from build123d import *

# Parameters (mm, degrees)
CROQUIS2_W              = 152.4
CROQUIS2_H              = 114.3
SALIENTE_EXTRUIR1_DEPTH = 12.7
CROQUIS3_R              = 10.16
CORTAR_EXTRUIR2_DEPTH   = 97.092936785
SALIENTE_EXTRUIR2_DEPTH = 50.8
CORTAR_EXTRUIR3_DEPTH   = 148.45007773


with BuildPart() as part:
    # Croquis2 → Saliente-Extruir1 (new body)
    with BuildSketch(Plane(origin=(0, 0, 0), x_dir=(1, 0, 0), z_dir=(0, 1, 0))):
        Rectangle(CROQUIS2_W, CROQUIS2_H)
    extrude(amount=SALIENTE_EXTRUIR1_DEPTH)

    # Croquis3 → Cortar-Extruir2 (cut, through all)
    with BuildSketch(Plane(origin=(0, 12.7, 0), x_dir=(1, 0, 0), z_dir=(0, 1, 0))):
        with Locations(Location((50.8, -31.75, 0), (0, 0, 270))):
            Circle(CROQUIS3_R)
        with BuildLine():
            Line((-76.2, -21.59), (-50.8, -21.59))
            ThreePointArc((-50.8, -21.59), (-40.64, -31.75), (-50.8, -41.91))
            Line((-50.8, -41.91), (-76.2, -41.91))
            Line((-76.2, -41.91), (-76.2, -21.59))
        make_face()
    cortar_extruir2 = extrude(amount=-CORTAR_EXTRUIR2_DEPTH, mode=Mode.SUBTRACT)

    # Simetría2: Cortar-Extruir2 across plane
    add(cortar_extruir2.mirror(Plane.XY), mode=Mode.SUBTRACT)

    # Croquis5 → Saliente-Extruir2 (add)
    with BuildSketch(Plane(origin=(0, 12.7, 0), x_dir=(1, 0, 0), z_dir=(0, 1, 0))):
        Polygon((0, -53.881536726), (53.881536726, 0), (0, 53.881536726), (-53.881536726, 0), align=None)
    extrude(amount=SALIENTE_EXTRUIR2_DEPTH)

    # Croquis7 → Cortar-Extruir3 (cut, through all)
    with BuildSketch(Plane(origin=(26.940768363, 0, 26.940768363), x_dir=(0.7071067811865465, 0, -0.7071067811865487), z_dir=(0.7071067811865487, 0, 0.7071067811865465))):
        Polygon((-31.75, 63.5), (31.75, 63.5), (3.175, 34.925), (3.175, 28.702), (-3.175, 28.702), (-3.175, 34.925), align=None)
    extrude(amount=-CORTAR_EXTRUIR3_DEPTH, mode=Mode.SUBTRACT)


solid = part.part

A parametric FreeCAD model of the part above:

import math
import FreeCAD as App
import Part
import Sketcher
Q = App.Units.Quantity

doc = App.newDocument("Part")
body = doc.addObject("PartDesign::Body", "Body")

# Sketch on XZ plane
sketch1 = doc.addObject("Sketcher::SketchObject", "Sketch")
body.addObject(sketch1)
sketch1.AttachmentSupport = (doc.XZ_Plane, [""])
sketch1.MapMode = "FlatFace"
sketch1.addGeometry([
    Part.LineSegment(App.Vector(-76, -57, 0), App.Vector(-76, 57, 0)),
    Part.LineSegment(App.Vector(-76, 57, 0), App.Vector(76, 57, 0)),
    Part.LineSegment(App.Vector(76, 57, 0), App.Vector(76, -57, 0)),
    Part.LineSegment(App.Vector(76, -57, 0), App.Vector(-76, -57, 0)),
], False)
sketch1.addConstraint([
    Sketcher.Constraint("Coincident", 0, 2, 1, 1),
    Sketcher.Constraint("Coincident", 1, 2, 2, 1),
    Sketcher.Constraint("Coincident", 2, 2, 3, 1),
    Sketcher.Constraint("Coincident", 3, 2, 0, 1),
    Sketcher.Constraint("Vertical", 0),
    Sketcher.Constraint("Horizontal", 1),
    Sketcher.Constraint("Vertical", 2),
    Sketcher.Constraint("Horizontal", 3),
    Sketcher.Constraint("Symmetric", 0, 2, 2, 2, -1, 1),
    Sketcher.Constraint("DistanceX", 1, 1, 1, 2, Q("6 in")),
    Sketcher.Constraint("DistanceY", 0, 1, 0, 2, Q("4.5 in")),
])
pad1 = doc.addObject("PartDesign::Pad", "Pad")
body.addObject(pad1)
pad1.Profile = sketch1
pad1.Length = Q("0.5 in")
pad1.Reversed = True

# Sketch on XZ plane
sketch2 = doc.addObject("Sketcher::SketchObject", "Sketch001")
body.addObject(sketch2)
sketch2.AttachmentSupport = (doc.XZ_Plane, [""])
sketch2.MapMode = "FlatFace"
sketch2.AttachmentOffset = App.Placement(App.Vector(0, 0, -0.5 * 25.4), App.Rotation())
sketch2.addGeometry([
    Part.Circle(App.Vector(51, 32, 0), App.Vector(0, 0, 1), 10),  # 0
    Part.LineSegment(App.Vector(-51, 22, 0), App.Vector(-76, 22, 0)),  # 1
    Part.LineSegment(App.Vector(-76, 22, 0), App.Vector(-76, 42, 0)),  # 2
    Part.LineSegment(App.Vector(-76, 42, 0), App.Vector(-51, 42, 0)),  # 3
    Part.ArcOfCircle(Part.Circle(App.Vector(-51, 32, 0), App.Vector(0, 0, 1), 10), math.radians(-90), math.radians(90)),  # 4
], False)
sketch2.addConstraint([
    Sketcher.Constraint("Coincident", 1, 2, 2, 1),
    Sketcher.Constraint("Coincident", 2, 2, 3, 1),
    Sketcher.Constraint("Tangent", 3, 2, 4, 2),
    Sketcher.Constraint("Tangent", 4, 1, 1, 1),
    Sketcher.Constraint("Horizontal", 1),
    Sketcher.Constraint("Vertical", 2),
    Sketcher.Constraint("Horizontal", 3),
    Sketcher.Constraint("Equal", 0, 4),
    Sketcher.Constraint("Symmetric", 0, 3, 4, 3, -2),
    Sketcher.Constraint("Diameter", 0, Q("0.8 in")),
    Sketcher.Constraint("DistanceX", 1, 2, 1, 1, Q("1 in")),
    Sketcher.Constraint("DistanceX", -1, 1, 0, 3, Q("2 in")),
    Sketcher.Constraint("DistanceY", -1, 1, 0, 3, Q("1.25 in")),
])
pocket1 = doc.addObject("PartDesign::Pocket", "Pocket")
body.addObject(pocket1)
pocket1.Profile = sketch2
pocket1.Type = "ThroughAll"
pocket1.Reversed = True
doc.recompute()

mirrored = doc.addObject("PartDesign::Mirrored", "Mirrored")
body.addObject(mirrored)
mirrored.Originals = [pocket1]
mirrored.MirrorPlane = (doc.XY_Plane, [""])
body.Tip = mirrored

# Sketch on XZ plane
sketch3 = doc.addObject("Sketcher::SketchObject", "Sketch002")
body.addObject(sketch3)
sketch3.AttachmentSupport = (doc.XZ_Plane, [""])
sketch3.MapMode = "FlatFace"
sketch3.AttachmentOffset = App.Placement(App.Vector(0, 0, -0.5 * 25.4), App.Rotation())
sketch3.addGeometry([
    Part.LineSegment(App.Vector(0, 54, 0), App.Vector(54, 0, 0)),
    Part.LineSegment(App.Vector(54, 0, 0), App.Vector(0, -54, 0)),
    Part.LineSegment(App.Vector(0, -54, 0), App.Vector(-54, 0, 0)),
    Part.LineSegment(App.Vector(-54, 0, 0), App.Vector(0, 54, 0)),
], False)
sketch3.addConstraint([
    Sketcher.Constraint("Coincident", 0, 2, 1, 1),
    Sketcher.Constraint("Coincident", 1, 2, 2, 1),
    Sketcher.Constraint("Coincident", 2, 2, 3, 1),
    Sketcher.Constraint("Coincident", 3, 2, 0, 1),
    Sketcher.Constraint("Symmetric", 0, 2, 2, 2, -1, 1),
    Sketcher.Constraint("Symmetric", 1, 2, 3, 2, -1, 1),
    Sketcher.Constraint("PointOnObject", 0, 2, -1),
    Sketcher.Constraint("PointOnObject", 1, 2, -2),
    Sketcher.Constraint("Perpendicular", 0, 1),
    Sketcher.Constraint("Distance", 0, Q("3 in")),
])
pad2 = doc.addObject("PartDesign::Pad", "Pad001")
body.addObject(pad2)
pad2.Profile = sketch3
pad2.Length = Q("2 in")
pad2.Reversed = True

# Sketch on an angled plane
sketch4 = doc.addObject("Sketcher::SketchObject", "Sketch003")
body.addObject(sketch4)
sketch4.Placement = App.Placement(App.Vector(26.940768, 0, 26.940768), App.Rotation(App.Vector(0.707106781, 0, -0.707106781), App.Vector(0, 0.999999999, 0), App.Vector(0.707106781, 0, 0.707106781), "ZXY"))
sketch4.addGeometry([
    Part.LineSegment(App.Vector(32, 63, 0), App.Vector(-32, 63, 0)),  # 0
    Part.LineSegment(App.Vector(-32, 63, 0), App.Vector(-3, 35, 0)),  # 1
    Part.LineSegment(App.Vector(-3, 35, 0), App.Vector(-3, 29, 0)),  # 2
    Part.LineSegment(App.Vector(-3, 29, 0), App.Vector(3, 29, 0)),  # 3
    Part.LineSegment(App.Vector(3, 29, 0), App.Vector(3, 35, 0)),  # 4
    Part.LineSegment(App.Vector(3, 35, 0), App.Vector(32, 63, 0)),  # 5
], False)
sketch4.addConstraint([
    Sketcher.Constraint("Coincident", 0, 2, 1, 1),
    Sketcher.Constraint("Coincident", 1, 2, 2, 1),
    Sketcher.Constraint("Coincident", 2, 2, 3, 1),
    Sketcher.Constraint("Coincident", 3, 2, 4, 1),
    Sketcher.Constraint("Coincident", 4, 2, 5, 1),
    Sketcher.Constraint("Coincident", 5, 2, 0, 1),
    Sketcher.Constraint("Horizontal", 0),
    Sketcher.Constraint("Vertical", 2),
    Sketcher.Constraint("Horizontal", 3),
    Sketcher.Constraint("Vertical", 4),
    Sketcher.Constraint("Symmetric", 1, 2, 4, 2, -2),
    Sketcher.Constraint("Perpendicular", 1, 5),
    Sketcher.Constraint("Equal", 1, 5),
    Sketcher.Constraint("DistanceX", 0, 2, 0, 1, Q("2.5 in")),
    Sketcher.Constraint("DistanceX", 3, 1, 3, 2, Q("0.25 in")),
    Sketcher.Constraint("DistanceY", -1, 1, 0, 2, Q("2.5 in")),
    Sketcher.Constraint("DistanceY", 2, 2, 2, 1, Q("0.245 in")),
])
pocket2 = doc.addObject("PartDesign::Pocket", "Pocket001")
body.addObject(pocket2)
pocket2.Profile = sketch4
pocket2.Type = "ThroughAll"

doc.recompute()
